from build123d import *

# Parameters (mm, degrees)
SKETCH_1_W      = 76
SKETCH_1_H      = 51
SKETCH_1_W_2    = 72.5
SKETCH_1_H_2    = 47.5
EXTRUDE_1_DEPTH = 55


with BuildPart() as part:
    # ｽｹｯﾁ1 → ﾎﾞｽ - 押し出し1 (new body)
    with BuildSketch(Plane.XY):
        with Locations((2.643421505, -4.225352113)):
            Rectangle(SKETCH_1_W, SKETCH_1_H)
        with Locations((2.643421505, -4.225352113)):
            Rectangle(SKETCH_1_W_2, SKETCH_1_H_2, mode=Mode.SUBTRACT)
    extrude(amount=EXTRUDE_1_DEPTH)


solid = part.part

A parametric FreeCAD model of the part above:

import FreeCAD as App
import Part
import Sketcher
from FreeCAD import Vector


def add_polygon(sketch, points):
    """Adds a closed chain of lines whose ends are joined by coincident constraints."""
    first, n = sketch.GeometryCount, len(points)
    for a, b in zip(points, points[1:] + points[:1]):
        sketch.addGeometry(Part.LineSegment(App.Vector(*a, 0), App.Vector(*b, 0)), False)
    for i in range(n):
        sketch.addConstraint(Sketcher.Constraint("Coincident", first + i, 2, first + (i + 1) % n, 1))

doc = App.newDocument("Part")
body = doc.addObject("PartDesign::Body", "Body")

sketch1 = body.newObject("Sketcher::SketchObject", "Sketch")
sketch1.AttachmentSupport = (doc.getObject("XY_Plane"), [""])
sketch1.MapMode = "FlatFace"
add_polygon(sketch1, [(-35, 21), (-35, -30), (41, -30), (41, 21)])
add_polygon(sketch1, [(39, -28), (-34, -28), (-34, 20), (39, 20)])
sketch1.addConstraint([
    Sketcher.Constraint("Vertical", 0),
    Sketcher.Constraint("Horizontal", 1),
    Sketcher.Constraint("Vertical", 2),
    Sketcher.Constraint("Horizontal", 3),
    Sketcher.Constraint("Horizontal", 4),
    Sketcher.Constraint("Vertical", 5),
    Sketcher.Constraint("Horizontal", 6),
    Sketcher.Constraint("Vertical", 7),
    Sketcher.Constraint("DistanceX", 1, 1, 1, 2, 76.0),
    Sketcher.Constraint("DistanceY", 0, 2, 0, 1, 51.0),
    Sketcher.Constraint("DistanceX", 4, 2, 4, 1, 72.5),
    Sketcher.Constraint("DistanceY", 5, 1, 5, 2, 47.5),
    Sketcher.Constraint("DistanceX", 0, 2, 4, 2, 1.75),
    Sketcher.Constraint("DistanceY", 0, 2, 4, 2, 1.75),
    Sketcher.Constraint("DistanceX", 0, 2, -1, 1, 35.356578),
    Sketcher.Constraint("DistanceY", 0, 2, -1, 1, 29.725352),
])
pad1 = body.newObject("PartDesign::Pad", "Pad")
pad1.Profile = sketch1
pad1.Length = 55

doc.recompute()
